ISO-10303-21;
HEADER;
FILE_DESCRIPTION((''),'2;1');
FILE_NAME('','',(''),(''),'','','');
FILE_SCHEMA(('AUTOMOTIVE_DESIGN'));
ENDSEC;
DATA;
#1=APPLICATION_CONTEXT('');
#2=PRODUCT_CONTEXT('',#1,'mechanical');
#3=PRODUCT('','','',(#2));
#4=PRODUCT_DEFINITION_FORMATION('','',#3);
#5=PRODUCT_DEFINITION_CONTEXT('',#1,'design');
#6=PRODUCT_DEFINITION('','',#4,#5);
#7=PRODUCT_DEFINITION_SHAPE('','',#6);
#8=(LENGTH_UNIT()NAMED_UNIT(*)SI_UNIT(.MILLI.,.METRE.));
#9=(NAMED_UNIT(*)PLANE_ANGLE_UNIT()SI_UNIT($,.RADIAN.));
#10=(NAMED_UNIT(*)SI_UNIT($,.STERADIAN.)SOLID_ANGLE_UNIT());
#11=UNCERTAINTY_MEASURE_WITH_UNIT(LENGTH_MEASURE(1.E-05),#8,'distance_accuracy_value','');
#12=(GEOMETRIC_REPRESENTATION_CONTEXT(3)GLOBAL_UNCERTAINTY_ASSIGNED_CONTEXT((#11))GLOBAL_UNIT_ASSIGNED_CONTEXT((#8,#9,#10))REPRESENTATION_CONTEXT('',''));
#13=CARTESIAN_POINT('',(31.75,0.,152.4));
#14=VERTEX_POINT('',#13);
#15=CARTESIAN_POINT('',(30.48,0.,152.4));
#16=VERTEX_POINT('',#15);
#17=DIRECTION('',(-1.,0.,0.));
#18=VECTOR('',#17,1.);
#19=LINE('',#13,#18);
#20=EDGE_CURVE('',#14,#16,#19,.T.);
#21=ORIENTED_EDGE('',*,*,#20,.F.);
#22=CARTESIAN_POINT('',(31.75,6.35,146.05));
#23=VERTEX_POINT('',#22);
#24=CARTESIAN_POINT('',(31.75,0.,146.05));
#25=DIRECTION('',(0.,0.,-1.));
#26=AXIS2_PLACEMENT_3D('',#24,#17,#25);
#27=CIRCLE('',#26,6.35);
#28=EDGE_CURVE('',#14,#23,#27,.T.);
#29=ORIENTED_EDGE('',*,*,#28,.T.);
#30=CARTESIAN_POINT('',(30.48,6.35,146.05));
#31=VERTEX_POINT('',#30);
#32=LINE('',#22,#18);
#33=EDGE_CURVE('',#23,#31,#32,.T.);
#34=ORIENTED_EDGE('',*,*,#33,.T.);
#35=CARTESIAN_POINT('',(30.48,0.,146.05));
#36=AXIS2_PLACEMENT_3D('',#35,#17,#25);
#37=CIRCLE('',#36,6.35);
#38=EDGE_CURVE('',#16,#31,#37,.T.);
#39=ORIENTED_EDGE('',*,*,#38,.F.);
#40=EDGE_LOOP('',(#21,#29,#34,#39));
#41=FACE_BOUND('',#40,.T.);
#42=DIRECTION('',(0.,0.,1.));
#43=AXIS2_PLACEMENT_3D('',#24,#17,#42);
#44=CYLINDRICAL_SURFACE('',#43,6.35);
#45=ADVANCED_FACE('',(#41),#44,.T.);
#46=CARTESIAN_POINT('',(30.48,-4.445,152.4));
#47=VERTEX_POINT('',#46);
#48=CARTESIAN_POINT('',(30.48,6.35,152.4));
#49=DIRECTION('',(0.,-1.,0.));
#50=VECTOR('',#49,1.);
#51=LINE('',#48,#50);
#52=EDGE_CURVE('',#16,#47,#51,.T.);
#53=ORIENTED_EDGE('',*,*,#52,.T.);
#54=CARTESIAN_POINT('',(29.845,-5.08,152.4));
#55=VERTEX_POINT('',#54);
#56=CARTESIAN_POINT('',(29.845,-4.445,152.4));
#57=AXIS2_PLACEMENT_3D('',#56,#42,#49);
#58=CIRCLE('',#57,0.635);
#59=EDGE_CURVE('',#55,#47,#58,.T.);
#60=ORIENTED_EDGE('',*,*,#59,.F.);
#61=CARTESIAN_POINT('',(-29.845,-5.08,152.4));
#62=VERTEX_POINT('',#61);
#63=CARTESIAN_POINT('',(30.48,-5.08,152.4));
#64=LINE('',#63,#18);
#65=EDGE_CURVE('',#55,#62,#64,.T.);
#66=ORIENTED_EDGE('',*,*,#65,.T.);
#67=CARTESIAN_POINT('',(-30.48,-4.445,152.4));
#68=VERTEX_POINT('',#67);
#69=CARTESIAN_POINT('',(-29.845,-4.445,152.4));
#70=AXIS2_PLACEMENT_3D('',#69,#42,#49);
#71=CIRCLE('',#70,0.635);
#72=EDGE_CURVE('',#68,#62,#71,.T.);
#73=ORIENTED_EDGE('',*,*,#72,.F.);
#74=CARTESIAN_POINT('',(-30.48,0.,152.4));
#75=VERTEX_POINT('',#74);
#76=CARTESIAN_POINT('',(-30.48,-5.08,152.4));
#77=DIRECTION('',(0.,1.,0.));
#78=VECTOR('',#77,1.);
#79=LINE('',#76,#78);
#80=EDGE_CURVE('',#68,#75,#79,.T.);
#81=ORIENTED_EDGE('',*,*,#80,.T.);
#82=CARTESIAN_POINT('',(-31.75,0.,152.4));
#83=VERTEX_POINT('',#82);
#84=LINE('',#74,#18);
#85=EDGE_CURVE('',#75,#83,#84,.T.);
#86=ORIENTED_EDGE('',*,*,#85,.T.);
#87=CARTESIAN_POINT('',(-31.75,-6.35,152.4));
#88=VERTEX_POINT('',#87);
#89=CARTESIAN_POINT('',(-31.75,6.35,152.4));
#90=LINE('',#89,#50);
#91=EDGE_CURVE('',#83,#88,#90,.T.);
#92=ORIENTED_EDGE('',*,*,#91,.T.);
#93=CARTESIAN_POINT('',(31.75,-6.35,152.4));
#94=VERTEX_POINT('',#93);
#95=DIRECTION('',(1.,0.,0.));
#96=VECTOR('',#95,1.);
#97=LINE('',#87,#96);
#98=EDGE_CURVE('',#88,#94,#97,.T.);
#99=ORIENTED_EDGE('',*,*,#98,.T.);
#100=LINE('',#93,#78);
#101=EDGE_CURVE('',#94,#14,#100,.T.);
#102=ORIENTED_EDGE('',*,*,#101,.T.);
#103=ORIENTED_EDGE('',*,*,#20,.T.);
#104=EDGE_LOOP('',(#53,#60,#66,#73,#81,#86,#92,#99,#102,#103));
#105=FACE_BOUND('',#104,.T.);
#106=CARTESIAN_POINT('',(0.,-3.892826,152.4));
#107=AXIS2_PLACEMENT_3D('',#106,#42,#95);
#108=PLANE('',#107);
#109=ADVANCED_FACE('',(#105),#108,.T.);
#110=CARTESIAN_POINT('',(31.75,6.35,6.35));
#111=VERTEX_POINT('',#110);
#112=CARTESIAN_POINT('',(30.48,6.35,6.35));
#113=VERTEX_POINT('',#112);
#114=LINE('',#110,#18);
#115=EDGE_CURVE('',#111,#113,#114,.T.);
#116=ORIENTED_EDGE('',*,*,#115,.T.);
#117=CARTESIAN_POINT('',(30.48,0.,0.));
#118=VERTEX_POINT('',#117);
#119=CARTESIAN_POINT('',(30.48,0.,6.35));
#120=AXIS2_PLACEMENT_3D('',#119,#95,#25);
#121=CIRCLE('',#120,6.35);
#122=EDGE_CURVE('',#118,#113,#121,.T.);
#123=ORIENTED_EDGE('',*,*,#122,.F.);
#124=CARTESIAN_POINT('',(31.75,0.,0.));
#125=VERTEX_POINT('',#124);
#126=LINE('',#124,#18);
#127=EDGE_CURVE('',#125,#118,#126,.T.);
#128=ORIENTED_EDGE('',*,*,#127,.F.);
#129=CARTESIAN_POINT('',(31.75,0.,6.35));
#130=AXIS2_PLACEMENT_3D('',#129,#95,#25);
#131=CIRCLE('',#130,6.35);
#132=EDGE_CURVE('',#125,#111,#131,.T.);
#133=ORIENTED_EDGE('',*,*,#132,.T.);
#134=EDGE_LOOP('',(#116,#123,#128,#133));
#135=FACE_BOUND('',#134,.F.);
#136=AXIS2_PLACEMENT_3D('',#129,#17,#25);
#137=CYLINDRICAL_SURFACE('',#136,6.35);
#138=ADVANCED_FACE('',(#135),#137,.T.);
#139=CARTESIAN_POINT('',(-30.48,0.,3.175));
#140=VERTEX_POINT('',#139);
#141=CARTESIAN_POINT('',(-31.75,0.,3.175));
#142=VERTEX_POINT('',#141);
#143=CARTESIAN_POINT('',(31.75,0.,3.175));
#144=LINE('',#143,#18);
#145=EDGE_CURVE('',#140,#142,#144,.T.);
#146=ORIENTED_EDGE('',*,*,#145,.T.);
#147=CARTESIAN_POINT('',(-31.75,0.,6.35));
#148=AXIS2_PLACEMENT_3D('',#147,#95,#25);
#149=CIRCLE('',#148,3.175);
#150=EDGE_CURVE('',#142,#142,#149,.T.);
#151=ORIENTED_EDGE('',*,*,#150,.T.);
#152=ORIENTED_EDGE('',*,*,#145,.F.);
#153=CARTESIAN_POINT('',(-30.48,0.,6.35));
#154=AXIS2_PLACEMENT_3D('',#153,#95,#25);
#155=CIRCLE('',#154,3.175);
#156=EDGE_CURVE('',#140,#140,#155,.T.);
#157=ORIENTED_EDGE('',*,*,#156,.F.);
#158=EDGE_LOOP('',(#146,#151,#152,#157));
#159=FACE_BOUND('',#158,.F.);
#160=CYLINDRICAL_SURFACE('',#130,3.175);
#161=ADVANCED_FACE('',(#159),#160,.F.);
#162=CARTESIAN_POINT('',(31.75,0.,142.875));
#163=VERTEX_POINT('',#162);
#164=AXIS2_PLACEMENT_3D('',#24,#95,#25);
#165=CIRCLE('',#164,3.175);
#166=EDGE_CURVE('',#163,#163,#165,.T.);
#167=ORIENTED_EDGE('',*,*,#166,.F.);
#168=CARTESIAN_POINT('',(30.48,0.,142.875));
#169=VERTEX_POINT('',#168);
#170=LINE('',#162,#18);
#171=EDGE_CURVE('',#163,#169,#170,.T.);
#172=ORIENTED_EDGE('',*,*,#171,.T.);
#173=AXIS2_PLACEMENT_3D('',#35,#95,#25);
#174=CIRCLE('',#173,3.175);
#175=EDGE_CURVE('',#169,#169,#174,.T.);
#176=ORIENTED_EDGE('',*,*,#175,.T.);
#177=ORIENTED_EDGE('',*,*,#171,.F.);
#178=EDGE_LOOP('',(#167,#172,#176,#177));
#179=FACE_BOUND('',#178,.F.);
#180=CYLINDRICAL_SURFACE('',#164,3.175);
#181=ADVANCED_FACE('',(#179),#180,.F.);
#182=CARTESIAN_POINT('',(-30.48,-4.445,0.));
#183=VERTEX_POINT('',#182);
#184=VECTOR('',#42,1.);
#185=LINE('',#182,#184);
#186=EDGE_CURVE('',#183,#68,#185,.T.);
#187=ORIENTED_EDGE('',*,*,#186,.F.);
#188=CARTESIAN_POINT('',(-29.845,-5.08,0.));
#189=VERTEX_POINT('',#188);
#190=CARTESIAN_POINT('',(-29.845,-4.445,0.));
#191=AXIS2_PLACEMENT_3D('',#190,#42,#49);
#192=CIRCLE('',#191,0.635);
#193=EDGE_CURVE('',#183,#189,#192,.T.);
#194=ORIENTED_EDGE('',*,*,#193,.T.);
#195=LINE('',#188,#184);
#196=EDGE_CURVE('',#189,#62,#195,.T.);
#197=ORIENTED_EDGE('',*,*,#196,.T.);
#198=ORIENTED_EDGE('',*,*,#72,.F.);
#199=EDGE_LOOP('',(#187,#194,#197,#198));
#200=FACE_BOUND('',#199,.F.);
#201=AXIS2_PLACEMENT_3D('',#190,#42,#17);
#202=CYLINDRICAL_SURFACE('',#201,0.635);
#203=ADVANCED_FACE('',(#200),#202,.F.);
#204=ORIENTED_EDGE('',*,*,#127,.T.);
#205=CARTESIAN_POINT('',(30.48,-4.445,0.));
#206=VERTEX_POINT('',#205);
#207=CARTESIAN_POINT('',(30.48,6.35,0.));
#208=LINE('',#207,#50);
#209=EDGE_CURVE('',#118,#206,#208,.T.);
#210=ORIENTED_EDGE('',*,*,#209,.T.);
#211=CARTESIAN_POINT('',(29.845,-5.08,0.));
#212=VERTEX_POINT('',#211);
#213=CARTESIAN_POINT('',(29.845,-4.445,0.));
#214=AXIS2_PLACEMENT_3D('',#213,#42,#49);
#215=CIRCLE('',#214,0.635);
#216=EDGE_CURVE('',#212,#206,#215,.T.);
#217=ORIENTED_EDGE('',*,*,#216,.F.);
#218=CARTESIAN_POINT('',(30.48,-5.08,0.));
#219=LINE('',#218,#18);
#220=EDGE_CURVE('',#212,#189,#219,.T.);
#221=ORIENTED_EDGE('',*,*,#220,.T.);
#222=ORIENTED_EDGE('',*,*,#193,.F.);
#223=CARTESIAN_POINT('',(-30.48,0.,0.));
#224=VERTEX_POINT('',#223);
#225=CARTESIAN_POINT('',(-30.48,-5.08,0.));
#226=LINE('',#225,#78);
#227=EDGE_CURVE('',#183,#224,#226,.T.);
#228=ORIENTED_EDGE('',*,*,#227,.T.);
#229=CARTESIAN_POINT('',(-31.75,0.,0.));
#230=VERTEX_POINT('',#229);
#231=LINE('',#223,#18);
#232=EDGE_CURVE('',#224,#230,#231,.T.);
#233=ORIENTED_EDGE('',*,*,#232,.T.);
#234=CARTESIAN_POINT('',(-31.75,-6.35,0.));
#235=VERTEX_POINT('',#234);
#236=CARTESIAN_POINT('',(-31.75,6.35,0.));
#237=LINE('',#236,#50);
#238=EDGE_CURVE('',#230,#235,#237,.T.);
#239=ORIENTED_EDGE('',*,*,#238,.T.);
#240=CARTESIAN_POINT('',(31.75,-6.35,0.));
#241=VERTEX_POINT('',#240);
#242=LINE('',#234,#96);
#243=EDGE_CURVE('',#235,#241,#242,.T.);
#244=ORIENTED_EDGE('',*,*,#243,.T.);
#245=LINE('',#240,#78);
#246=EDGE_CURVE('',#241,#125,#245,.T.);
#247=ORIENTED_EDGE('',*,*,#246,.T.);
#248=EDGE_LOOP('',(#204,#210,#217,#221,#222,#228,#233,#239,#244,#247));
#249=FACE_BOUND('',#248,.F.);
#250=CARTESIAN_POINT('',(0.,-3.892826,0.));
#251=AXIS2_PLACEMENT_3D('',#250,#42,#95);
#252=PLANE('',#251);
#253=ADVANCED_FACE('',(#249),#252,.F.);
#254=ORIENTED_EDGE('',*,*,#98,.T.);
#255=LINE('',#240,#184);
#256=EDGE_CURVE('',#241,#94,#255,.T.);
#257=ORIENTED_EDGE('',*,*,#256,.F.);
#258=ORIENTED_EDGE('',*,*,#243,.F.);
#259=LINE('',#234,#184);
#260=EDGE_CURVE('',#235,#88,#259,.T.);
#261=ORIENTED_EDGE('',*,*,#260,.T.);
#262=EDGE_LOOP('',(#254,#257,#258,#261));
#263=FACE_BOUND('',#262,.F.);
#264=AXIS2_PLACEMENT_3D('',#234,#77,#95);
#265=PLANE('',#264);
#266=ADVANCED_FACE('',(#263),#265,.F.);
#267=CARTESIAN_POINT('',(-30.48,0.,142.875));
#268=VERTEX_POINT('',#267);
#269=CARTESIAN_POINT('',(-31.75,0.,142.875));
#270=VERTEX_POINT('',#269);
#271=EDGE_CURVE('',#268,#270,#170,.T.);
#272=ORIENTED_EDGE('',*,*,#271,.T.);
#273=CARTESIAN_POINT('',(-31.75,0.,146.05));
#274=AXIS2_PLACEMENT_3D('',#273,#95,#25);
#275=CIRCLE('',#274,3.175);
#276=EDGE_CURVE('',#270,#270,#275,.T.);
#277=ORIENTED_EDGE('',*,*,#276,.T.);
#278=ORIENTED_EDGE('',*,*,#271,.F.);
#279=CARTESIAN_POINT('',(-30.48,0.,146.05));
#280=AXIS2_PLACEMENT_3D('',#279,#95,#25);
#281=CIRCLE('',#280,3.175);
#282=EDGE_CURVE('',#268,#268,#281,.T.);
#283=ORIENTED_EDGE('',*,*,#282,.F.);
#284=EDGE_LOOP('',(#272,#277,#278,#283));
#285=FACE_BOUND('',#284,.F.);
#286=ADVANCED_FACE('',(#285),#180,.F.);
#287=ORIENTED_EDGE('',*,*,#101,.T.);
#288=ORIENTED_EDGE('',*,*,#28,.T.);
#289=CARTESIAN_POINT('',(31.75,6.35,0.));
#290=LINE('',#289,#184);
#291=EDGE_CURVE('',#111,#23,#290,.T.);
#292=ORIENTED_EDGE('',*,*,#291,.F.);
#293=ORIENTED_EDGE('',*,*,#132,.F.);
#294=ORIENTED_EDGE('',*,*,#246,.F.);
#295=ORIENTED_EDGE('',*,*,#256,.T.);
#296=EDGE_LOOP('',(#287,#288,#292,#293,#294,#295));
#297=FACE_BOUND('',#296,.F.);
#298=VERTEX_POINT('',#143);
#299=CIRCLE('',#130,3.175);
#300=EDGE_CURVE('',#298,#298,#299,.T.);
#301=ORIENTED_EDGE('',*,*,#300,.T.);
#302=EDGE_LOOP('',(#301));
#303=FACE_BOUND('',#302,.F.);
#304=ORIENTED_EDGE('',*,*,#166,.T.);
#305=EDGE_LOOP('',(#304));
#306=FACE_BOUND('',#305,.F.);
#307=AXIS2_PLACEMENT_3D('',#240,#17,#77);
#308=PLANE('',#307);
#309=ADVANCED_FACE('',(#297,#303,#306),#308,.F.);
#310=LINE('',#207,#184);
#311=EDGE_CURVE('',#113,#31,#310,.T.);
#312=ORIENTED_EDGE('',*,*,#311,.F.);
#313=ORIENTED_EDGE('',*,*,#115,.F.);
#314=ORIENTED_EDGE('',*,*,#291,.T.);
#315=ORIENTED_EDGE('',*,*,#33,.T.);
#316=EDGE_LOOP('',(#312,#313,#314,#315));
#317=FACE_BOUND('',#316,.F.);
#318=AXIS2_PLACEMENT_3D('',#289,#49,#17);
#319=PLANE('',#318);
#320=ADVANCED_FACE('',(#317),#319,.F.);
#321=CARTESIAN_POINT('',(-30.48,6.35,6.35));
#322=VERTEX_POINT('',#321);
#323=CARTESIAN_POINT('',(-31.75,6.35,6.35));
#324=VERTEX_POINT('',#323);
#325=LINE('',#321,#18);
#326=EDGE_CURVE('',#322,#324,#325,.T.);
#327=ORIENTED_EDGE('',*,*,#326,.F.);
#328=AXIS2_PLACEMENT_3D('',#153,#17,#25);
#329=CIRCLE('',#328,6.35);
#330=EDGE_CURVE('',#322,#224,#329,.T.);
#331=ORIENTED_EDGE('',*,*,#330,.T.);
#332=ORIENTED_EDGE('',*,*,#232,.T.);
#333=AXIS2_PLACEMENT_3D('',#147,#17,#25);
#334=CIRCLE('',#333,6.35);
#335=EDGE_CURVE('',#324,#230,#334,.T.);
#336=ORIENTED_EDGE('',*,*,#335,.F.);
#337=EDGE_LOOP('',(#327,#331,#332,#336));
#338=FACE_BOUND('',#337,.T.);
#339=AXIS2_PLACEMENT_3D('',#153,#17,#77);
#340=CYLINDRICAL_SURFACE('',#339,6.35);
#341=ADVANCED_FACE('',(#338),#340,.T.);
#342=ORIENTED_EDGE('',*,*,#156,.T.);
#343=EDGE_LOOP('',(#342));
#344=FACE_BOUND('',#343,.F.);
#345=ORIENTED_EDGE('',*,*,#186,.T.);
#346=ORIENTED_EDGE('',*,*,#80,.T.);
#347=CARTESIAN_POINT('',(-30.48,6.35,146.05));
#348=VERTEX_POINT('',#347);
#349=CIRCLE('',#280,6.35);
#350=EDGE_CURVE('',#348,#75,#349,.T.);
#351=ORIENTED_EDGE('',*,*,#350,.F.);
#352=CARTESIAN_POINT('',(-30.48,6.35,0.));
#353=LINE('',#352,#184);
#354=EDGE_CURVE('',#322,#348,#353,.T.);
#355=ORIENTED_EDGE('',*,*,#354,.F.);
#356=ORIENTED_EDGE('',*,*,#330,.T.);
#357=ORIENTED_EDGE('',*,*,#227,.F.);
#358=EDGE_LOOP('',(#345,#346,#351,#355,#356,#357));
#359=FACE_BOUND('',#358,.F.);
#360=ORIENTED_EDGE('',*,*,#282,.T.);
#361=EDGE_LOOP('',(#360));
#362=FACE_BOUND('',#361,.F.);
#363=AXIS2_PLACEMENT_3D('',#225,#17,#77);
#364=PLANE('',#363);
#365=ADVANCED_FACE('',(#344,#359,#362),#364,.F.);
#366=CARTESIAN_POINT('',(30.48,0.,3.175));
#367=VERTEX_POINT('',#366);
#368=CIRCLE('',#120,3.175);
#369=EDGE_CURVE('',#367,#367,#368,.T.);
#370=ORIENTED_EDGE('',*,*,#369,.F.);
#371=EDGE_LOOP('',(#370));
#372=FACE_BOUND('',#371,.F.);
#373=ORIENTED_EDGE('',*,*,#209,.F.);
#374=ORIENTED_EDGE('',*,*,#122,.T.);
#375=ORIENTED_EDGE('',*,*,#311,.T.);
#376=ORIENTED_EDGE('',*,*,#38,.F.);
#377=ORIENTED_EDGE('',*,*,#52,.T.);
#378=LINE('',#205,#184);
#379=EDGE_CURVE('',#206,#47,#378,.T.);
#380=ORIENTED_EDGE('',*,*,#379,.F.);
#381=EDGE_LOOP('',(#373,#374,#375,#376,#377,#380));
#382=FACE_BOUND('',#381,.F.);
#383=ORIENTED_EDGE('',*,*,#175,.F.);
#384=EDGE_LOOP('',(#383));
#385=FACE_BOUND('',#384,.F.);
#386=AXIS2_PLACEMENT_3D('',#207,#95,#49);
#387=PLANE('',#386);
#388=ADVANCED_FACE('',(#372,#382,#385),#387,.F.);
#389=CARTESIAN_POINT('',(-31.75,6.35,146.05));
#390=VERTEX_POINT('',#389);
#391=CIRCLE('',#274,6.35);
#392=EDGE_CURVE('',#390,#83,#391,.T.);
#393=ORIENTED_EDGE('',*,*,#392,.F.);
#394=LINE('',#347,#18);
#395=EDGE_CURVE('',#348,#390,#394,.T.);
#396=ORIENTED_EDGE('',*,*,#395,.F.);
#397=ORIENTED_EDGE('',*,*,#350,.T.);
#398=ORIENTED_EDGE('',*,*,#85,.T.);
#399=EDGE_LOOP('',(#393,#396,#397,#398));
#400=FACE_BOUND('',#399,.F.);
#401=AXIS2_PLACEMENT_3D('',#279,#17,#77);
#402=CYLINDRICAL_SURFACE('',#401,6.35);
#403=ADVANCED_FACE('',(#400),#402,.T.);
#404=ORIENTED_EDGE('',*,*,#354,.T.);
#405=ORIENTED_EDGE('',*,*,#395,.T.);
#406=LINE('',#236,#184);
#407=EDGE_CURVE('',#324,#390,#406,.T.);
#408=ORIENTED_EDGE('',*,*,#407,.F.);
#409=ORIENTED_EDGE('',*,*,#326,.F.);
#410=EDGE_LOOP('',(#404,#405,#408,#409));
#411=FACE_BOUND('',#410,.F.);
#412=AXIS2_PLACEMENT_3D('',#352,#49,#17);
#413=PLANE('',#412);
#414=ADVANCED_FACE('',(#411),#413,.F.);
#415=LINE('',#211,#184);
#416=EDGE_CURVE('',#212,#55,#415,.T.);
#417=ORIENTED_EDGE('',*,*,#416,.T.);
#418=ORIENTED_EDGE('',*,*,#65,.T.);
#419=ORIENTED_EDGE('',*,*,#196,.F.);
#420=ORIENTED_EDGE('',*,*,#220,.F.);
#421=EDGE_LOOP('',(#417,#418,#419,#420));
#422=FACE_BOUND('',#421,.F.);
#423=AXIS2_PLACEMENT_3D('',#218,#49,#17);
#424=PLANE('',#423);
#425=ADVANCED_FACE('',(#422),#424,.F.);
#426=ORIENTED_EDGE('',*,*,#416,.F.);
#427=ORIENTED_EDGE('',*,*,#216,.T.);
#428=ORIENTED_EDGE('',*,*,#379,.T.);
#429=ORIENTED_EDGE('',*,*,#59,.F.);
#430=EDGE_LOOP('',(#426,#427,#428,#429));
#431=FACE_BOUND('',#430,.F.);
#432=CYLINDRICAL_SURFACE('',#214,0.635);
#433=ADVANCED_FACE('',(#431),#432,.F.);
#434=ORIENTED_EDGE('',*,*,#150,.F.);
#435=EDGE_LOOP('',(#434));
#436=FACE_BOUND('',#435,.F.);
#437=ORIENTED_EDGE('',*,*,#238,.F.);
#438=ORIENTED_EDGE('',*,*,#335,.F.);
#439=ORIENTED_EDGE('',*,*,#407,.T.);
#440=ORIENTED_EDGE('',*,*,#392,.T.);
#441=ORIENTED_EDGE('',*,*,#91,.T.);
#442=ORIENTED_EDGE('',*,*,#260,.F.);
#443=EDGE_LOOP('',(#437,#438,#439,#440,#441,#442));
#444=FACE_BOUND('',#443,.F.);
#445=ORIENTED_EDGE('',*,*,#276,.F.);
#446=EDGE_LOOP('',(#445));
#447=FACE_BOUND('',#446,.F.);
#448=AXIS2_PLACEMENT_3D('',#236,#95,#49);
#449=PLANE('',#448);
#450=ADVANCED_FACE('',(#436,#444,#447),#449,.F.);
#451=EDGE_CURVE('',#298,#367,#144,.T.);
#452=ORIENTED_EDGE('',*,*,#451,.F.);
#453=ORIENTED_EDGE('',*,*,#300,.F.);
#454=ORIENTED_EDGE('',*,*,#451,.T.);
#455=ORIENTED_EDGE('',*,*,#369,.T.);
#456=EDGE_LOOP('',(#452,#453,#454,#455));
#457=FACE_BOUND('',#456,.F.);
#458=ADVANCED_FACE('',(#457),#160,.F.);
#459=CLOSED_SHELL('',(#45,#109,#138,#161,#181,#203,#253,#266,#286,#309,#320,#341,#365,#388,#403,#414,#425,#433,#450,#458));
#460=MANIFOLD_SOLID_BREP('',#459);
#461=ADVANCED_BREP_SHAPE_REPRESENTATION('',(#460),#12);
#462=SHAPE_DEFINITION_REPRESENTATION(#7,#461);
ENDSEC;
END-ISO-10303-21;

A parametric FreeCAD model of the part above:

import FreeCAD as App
import Part
import Sketcher

V = App.Vector
Q = App.Units.Quantity


def edges_at(feature, points):
    """Names of the edges that pass closest to the given points."""
    edges = feature.Shape.Edges
    near = lambda p: min(range(len(edges)), key=lambda i: edges[i].distToShape(Part.Vertex(*p))[0])
    return sorted({f"Edge{near(p) + 1}" for p in points})

doc = App.newDocument("Part")
params = doc.addObject("Spreadsheet::Sheet", "Params")
for row, (alias, value) in enumerate([
    ("sketch1_width", "2.5 in"),
    ("sketch1_width2", "2.4 in"),
    ("sketch1_height", "0.5 in"),
    ("sketch1_height2", "0.45 in"),
    ("pad1_length", "6 in"),
    ("sketch2_diameter", "0.25 in"),
    ("fillet_radius", "0.25 in"),
    ("fillet2_radius", "0.025 in"),
], start=1):
    params.set(f"A{row}", alias)
    params.set(f"B{row}", "=" + value)
    params.setAlias(f"B{row}", alias)

body = doc.addObject("PartDesign::Body", "Body")

sketch1 = body.newObject("Sketcher::SketchObject", "Sketch")
sketch1.AttachmentSupport = (doc.getObject("XY_Plane"), [""])
sketch1.MapMode = "FlatFace"
sketch1.addGeometry([
    Part.LineSegment(V(-31.8, 6.3, 0), V(-31.8, -6.3, 0)),
    Part.LineSegment(V(-31.8, -6.3, 0), V(31.8, -6.3, 0)),
    Part.LineSegment(V(31.8, -6.3, 0), V(31.8, 6.3, 0)),
    Part.LineSegment(V(31.8, 6.3, 0), V(30.5, 6.3, 0)),
    Part.LineSegment(V(30.5, 6.3, 0), V(30.5, -5.1, 0)),
    Part.LineSegment(V(30.5, -5.1, 0), V(-30.5, -5.1, 0)),
    Part.LineSegment(V(-30.5, -5.1, 0), V(-30.5, 6.3, 0)),
    Part.LineSegment(V(-30.5, 6.3, 0), V(-31.8, 6.3, 0)),
], False)
sketch1.addConstraint([
    Sketcher.Constraint("Coincident", 0, 2, 1, 1),
    Sketcher.Constraint("Coincident", 1, 2, 2, 1),
    Sketcher.Constraint("Coincident", 2, 2, 3, 1),
    Sketcher.Constraint("Coincident", 3, 2, 4, 1),
    Sketcher.Constraint("Coincident", 4, 2, 5, 1),
    Sketcher.Constraint("Coincident", 5, 2, 6, 1),
    Sketcher.Constraint("Coincident", 6, 2, 7, 1),
    Sketcher.Constraint("Coincident", 7, 2, 0, 1),
    Sketcher.Constraint("Vertical", 0),
    Sketcher.Constraint("Horizontal", 1),
    Sketcher.Constraint("Vertical", 2),
    Sketcher.Constraint("Horizontal", 3),
    Sketcher.Constraint("Vertical", 4),
    Sketcher.Constraint("Horizontal", 5),
    Sketcher.Constraint("Vertical", 6),
    Sketcher.Constraint("Horizontal", 7),
    Sketcher.Constraint("Symmetric", 0, 2, 2, 2, -1, 1),
    Sketcher.Constraint("Symmetric", 3, 2, 6, 2, -2),
    Sketcher.Constraint("DistanceX", 1, 1, 1, 2, Q("2.5 in")),
    Sketcher.Constraint("DistanceX", 5, 2, 5, 1, Q("2.4 in")),
    Sketcher.Constraint("DistanceY", 0, 2, 0, 1, Q("0.5 in")),
    Sketcher.Constraint("DistanceY", 4, 2, 4, 1, Q("0.45 in")),
])
sketch1.setExpression("Constraints[18]", "Params.sketch1_width")
sketch1.setExpression("Constraints[19]", "Params.sketch1_width2")
sketch1.setExpression("Constraints[20]", "Params.sketch1_height")
sketch1.setExpression("Constraints[21]", "Params.sketch1_height2")
pad1 = body.newObject("PartDesign::Pad", "Pad")
pad1.Profile = sketch1
pad1.setExpression("Length", "Params.pad1_length")

sketch2 = body.newObject("Sketcher::SketchObject", "Sketch001")
sketch2.AttachmentSupport = (doc.getObject("YZ_Plane"), [""])
sketch2.MapMode = "FlatFace"
sketch2.AttachmentOffset = App.Placement(V(0, 0, 1.25 * 25.4), App.Rotation())
sketch2.addGeometry([
    Part.Circle(V(0, 146.1, 0), V(0, 0, 1), 3.2),
    Part.Circle(V(0, 6.3, 0), V(0, 0, 1), 3.2),
], False)
sketch2.addConstraint([
    Sketcher.Constraint("Equal", 0, 1),
    Sketcher.Constraint("PointOnObject", 0, 3, -2),
    Sketcher.Constraint("PointOnObject", 1, 3, -2),
    Sketcher.Constraint("Diameter", 0, Q("0.25 in")),
    Sketcher.Constraint("DistanceY", 1, 3, 0, 3, Q("5.5 in")),
    Sketcher.Constraint("DistanceY", -1, 1, 0, 3, Q("5.75 in")),
])
sketch2.setExpression("Constraints[3]", "Params.sketch2_diameter")
pocket1 = body.newObject("PartDesign::Pocket", "Pocket")
pocket1.Profile = sketch2
pocket1.Type = "ThroughAll"
doc.recompute()

fillet = body.newObject("PartDesign::Fillet", "Fillet")
fillet.Base = (pocket1, edges_at(pocket1, [
    (-31.115, 6.35, 0),
    (31.115, 6.35, 0),
    (-31.115, 6.35, 152.4),
    (31.115, 6.35, 152.4),
]))
fillet.setExpression("Radius", "Params.fillet_radius")
doc.recompute()

fillet2 = body.newObject("PartDesign::Fillet", "Fillet001")
fillet2.Base = (fillet, edges_at(fillet, [(-30.48, -5.08, 76.2), (30.48, -5.08, 76.2)]))
fillet2.setExpression("Radius", "Params.fillet2_radius")

doc.recompute()
